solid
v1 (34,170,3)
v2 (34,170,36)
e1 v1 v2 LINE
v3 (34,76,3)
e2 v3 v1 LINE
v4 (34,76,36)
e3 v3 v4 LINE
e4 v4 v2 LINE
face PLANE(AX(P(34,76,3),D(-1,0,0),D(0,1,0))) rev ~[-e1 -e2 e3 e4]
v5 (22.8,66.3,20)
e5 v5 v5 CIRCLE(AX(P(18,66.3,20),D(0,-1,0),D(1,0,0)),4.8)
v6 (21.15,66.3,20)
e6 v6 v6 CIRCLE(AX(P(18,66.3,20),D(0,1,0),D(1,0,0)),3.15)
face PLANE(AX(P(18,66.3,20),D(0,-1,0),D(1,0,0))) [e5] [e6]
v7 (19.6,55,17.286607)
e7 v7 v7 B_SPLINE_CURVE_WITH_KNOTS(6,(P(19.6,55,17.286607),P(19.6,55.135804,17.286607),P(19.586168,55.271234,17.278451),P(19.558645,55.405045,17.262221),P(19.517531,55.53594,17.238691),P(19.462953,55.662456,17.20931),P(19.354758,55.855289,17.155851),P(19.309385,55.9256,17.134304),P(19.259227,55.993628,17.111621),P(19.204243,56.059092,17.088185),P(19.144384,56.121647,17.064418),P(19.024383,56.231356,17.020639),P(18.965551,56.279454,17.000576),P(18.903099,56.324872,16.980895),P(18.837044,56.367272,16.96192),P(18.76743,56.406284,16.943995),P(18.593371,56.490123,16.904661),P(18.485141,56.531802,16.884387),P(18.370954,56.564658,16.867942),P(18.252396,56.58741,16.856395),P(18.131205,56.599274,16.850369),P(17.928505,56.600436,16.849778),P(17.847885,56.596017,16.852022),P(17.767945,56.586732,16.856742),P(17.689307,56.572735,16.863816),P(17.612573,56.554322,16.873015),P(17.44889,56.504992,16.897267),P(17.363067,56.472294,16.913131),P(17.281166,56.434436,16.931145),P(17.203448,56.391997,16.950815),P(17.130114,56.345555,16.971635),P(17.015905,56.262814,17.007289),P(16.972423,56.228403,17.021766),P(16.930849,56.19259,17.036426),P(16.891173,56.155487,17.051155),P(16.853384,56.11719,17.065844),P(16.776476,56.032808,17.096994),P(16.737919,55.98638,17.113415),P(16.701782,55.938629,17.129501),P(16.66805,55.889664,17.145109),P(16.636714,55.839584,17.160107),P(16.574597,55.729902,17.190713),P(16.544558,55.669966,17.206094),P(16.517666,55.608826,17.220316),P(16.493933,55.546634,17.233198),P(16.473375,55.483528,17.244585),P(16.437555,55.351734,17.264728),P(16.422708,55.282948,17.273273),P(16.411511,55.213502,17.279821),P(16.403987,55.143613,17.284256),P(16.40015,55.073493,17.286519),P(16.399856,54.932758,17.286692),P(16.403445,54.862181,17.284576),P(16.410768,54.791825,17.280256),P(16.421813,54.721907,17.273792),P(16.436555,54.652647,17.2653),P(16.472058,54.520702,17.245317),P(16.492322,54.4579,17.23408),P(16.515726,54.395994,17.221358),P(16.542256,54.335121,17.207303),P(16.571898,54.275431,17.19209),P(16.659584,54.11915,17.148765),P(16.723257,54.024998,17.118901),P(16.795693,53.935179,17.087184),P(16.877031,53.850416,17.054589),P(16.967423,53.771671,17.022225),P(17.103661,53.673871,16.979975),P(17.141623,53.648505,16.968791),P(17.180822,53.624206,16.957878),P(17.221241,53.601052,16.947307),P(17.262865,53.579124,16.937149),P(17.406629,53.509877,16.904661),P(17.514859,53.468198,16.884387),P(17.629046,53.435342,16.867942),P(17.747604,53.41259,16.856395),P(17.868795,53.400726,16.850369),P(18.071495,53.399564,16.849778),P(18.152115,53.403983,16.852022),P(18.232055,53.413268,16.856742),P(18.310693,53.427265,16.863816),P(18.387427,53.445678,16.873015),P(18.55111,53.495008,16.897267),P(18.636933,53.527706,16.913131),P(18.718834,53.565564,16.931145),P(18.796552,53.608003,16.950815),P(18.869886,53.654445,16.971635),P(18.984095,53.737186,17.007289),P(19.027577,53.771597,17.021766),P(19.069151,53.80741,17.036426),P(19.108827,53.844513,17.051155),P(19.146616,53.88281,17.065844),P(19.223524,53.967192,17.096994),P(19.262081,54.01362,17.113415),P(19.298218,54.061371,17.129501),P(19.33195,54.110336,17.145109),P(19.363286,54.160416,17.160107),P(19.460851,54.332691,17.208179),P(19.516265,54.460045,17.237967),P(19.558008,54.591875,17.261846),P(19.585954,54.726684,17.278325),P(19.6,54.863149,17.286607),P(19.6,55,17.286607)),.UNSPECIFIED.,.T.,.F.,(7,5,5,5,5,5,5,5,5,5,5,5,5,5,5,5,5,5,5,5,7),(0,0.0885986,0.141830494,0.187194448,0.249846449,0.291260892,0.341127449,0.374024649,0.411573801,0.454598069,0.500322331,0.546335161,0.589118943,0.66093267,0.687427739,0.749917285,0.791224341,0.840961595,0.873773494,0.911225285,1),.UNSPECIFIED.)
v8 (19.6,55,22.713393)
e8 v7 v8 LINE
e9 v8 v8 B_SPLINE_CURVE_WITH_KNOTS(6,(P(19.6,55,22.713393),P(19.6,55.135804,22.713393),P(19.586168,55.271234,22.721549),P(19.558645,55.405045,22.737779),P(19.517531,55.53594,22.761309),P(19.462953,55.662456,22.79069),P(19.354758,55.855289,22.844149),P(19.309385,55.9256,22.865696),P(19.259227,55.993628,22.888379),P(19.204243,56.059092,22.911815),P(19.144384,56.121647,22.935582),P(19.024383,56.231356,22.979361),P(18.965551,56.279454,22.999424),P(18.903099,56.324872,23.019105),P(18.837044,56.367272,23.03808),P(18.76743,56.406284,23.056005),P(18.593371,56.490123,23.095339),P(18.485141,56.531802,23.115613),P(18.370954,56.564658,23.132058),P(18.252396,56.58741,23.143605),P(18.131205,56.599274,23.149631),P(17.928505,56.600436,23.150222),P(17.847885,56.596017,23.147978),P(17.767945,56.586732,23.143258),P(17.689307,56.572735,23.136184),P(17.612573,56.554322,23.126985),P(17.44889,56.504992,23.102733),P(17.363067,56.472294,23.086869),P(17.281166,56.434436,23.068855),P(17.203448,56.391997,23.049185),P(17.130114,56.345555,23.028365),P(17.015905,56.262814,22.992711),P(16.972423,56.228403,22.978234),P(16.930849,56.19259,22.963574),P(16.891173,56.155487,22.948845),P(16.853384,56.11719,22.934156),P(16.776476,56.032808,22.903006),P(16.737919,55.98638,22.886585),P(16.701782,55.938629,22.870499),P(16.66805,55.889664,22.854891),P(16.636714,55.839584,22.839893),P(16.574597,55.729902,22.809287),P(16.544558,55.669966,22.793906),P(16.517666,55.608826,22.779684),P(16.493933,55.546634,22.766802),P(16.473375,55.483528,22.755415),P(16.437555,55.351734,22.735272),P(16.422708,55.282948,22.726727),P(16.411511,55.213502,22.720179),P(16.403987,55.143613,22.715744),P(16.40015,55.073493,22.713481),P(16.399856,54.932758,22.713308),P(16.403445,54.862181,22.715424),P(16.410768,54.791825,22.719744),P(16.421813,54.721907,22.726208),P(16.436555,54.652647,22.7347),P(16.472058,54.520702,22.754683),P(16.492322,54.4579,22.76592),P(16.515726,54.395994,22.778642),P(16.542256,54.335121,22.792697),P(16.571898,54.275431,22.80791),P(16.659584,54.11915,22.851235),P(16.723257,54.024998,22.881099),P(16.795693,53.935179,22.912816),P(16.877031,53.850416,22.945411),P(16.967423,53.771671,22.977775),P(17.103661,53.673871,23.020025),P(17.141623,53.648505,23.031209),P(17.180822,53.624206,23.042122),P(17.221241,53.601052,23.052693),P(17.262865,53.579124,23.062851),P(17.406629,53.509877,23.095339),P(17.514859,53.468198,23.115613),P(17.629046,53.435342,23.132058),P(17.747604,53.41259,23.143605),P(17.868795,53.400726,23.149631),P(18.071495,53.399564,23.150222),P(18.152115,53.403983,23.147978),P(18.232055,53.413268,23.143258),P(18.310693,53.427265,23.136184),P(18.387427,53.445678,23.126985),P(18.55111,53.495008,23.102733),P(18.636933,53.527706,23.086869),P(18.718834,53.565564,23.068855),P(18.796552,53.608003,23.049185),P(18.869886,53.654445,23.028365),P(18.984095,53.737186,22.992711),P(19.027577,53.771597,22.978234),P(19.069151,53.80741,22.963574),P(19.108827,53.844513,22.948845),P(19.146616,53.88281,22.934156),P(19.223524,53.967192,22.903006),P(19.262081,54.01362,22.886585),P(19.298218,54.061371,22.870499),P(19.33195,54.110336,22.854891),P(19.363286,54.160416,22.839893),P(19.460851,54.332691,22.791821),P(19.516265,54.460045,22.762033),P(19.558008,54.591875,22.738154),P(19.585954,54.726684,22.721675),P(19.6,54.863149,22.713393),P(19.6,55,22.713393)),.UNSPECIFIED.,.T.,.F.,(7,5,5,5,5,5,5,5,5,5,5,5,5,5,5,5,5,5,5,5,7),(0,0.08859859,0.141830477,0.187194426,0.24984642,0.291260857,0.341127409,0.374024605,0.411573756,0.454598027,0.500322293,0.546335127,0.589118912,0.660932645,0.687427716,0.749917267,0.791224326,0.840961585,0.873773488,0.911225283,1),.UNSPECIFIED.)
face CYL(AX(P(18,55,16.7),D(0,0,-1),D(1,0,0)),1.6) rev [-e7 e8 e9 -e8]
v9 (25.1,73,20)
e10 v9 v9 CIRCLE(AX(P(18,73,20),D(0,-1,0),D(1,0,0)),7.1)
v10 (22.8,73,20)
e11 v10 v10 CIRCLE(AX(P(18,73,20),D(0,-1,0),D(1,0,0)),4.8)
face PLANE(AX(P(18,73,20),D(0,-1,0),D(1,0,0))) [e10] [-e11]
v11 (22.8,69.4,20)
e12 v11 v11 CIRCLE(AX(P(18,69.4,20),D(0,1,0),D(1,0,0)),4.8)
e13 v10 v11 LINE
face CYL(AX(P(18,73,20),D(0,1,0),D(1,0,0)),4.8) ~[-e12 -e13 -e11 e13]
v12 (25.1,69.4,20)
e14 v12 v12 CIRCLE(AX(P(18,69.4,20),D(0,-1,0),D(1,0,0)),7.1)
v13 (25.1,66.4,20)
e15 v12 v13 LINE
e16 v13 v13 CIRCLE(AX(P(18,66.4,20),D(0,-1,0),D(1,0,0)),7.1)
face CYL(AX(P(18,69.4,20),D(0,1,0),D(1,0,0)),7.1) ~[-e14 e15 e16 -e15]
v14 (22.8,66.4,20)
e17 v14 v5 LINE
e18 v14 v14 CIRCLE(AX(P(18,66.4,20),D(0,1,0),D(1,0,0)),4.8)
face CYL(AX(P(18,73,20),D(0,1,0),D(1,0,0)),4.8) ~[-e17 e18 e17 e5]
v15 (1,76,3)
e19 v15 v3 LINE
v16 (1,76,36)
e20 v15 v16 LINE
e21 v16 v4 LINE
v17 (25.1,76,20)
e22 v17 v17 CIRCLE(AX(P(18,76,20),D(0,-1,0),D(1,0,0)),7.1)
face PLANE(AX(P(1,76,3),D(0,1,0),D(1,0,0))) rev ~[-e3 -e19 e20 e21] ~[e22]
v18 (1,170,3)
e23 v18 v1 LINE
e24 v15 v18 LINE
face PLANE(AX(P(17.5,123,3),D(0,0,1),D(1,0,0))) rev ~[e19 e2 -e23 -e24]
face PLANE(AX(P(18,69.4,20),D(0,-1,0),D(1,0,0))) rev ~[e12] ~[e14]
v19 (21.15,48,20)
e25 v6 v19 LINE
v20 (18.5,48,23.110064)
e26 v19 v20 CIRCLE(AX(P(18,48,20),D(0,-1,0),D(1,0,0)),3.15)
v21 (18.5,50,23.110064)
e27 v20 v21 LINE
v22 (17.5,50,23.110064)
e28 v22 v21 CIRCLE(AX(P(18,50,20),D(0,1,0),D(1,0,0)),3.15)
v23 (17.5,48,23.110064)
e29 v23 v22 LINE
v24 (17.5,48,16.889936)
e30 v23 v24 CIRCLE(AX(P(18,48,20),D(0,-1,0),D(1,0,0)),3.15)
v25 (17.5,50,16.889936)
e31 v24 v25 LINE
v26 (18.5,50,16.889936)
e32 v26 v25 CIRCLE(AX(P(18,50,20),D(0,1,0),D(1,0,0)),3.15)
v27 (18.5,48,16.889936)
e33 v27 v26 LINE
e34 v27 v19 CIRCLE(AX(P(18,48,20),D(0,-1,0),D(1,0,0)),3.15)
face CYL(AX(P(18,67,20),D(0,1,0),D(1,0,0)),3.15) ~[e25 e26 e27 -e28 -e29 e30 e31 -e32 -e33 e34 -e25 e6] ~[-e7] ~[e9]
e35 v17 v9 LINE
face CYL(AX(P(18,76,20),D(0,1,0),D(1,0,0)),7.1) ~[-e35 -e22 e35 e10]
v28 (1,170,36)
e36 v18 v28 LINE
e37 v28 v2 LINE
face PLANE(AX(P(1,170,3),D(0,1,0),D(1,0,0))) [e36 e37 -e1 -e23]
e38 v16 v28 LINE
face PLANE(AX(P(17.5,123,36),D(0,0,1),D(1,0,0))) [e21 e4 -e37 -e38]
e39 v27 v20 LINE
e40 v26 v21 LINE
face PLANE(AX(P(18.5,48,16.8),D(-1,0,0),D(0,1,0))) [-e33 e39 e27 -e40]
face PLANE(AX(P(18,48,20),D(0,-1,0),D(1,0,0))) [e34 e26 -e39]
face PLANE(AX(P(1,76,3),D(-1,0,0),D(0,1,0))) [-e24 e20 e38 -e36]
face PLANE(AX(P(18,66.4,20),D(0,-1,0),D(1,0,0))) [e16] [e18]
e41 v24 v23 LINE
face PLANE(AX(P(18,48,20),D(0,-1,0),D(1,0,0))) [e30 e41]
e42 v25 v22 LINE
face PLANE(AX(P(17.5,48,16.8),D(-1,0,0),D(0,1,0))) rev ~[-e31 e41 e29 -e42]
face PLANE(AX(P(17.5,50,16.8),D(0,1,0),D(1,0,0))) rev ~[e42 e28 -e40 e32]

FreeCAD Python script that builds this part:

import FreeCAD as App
import Part
import Sketcher
from FreeCAD import Vector

doc = App.newDocument("Part")
body = doc.addObject("PartDesign::Body", "Body")

sketch1 = body.newObject("Sketcher::SketchObject", "Sketch")
sketch1.AttachmentSupport = (doc.getObject("XY_Plane"), [""])
sketch1.MapMode = "FlatFace"
sketch1.AttachmentOffset = App.Placement(Vector(0, 0, 16.8), App.Rotation())
sketch1.addGeometry([
    Part.LineSegment(Vector(17.5, 50, 0), Vector(17.5, 48, 0)),
    Part.LineSegment(Vector(17.5, 48, 0), Vector(18.5, 48, 0)),
    Part.LineSegment(Vector(18.5, 48, 0), Vector(18.5, 50, 0)),
    Part.LineSegment(Vector(18.5, 50, 0), Vector(17.5, 50, 0)),
], False)
sketch1.addConstraint([
    Sketcher.Constraint("Coincident", 0, 2, 1, 1),
    Sketcher.Constraint("Coincident", 1, 2, 2, 1),
    Sketcher.Constraint("Coincident", 2, 2, 3, 1),
    Sketcher.Constraint("Coincident", 3, 2, 0, 1),
    Sketcher.Constraint("Vertical", 0),
    Sketcher.Constraint("Horizontal", 1),
    Sketcher.Constraint("Vertical", 2),
    Sketcher.Constraint("Horizontal", 3),
    Sketcher.Constraint("DistanceX", 1, 1, 1, 2, 1.0),
    Sketcher.Constraint("DistanceY", 0, 2, 0, 1, 2.0),
    Sketcher.Constraint("DistanceY", -1, 1, 0, 2, 48.0),
    Sketcher.Constraint("DistanceX", -1, 1, 0, 2, 17.5),
])
pad1 = body.newObject("PartDesign::Pad", "Pad")
pad1.Profile = sketch1
pad1.Length = 6.4
body2 = doc.addObject("PartDesign::Body", "Body001")

sketch2 = body2.newObject("Sketcher::SketchObject", "Sketch001")
sketch2.AttachmentSupport = (doc.getObject("XY_Plane001"), [""])
sketch2.MapMode = "FlatFace"
sketch2.AttachmentOffset = App.Placement(Vector(0, 0, 16.7), App.Rotation())
sketch2.addGeometry(Part.Circle(Vector(18, 55, 0), Vector(0, 0, 1), 1.6), False)
sketch2.addConstraint([
    Sketcher.Constraint("Diameter", 0, 3.2),
    Sketcher.Constraint("DistanceX", -1, 1, 0, 3, 18.0),
    Sketcher.Constraint("DistanceY", -1, 1, 0, 3, 55.0),
])
pad2 = body2.newObject("PartDesign::Pad", "Pad001")
pad2.Profile = sketch2
pad2.Length = 6.5
body3 = doc.addObject("PartDesign::Body", "Body002")

sketch3 = body3.newObject("Sketcher::SketchObject", "Sketch002")
sketch3.AttachmentSupport = (doc.getObject("XZ_Plane002"), [""])
sketch3.MapMode = "FlatFace"
sketch3.AttachmentOffset = App.Placement(Vector(0, 0, -73), App.Rotation())
sketch3.addGeometry(Part.Circle(Vector(18, 20, 0), Vector(0, 0, 1), 4.8), False)
sketch3.addConstraint([
    Sketcher.Constraint("Diameter", 0, 9.6),
    Sketcher.Constraint("DistanceX", -1, 1, 0, 3, 18.0),
    Sketcher.Constraint("DistanceY", -1, 1, 0, 3, 20.0),
])
pad3 = body3.newObject("PartDesign::Pad", "Pad002")
pad3.Profile = sketch3
pad3.Length = 6.7
body4 = doc.addObject("PartDesign::Body", "Body003")

sketch4 = body4.newObject("Sketcher::SketchObject", "Sketch003")
sketch4.AttachmentSupport = (doc.getObject("XZ_Plane003"), [""])
sketch4.MapMode = "FlatFace"
sketch4.AttachmentOffset = App.Placement(Vector(0, 0, -67), App.Rotation())
sketch4.addGeometry(Part.Circle(Vector(18, 20, 0), Vector(0, 0, 1), 3.1), False)
sketch4.addConstraint([
    Sketcher.Constraint("Diameter", 0, 6.3),
    Sketcher.Constraint("DistanceX", -1, 1, 0, 3, 18.0),
    Sketcher.Constraint("DistanceY", -1, 1, 0, 3, 20.0),
])
pad4 = body4.newObject("PartDesign::Pad", "Pad003")
pad4.Profile = sketch4
pad4.Length = 19
body5 = doc.addObject("PartDesign::Body", "Body004")

sketch5 = body5.newObject("Sketcher::SketchObject", "Sketch004")
sketch5.AttachmentSupport = (doc.getObject("XZ_Plane004"), [""])
sketch5.MapMode = "FlatFace"
sketch5.AttachmentOffset = App.Placement(Vector(0, 0, -69.4), App.Rotation())
sketch5.addGeometry(Part.Circle(Vector(18, 20, 0), Vector(0, 0, 1), 7), False)
sketch5.addConstraint([
    Sketcher.Constraint("Diameter", 0, 14.2),
    Sketcher.Constraint("DistanceX", -1, 1, 0, 3, 18.0),
    Sketcher.Constraint("DistanceY", -1, 1, 0, 3, 20.0),
])
pad5 = body5.newObject("PartDesign::Pad", "Pad004")
pad5.Profile = sketch5
pad5.Length = 3
body6 = doc.addObject("PartDesign::Body", "Body005")

sketch6 = body6.newObject("Sketcher::SketchObject", "Sketch005")
sketch6.AttachmentSupport = (doc.getObject("XZ_Plane005"), [""])
sketch6.MapMode = "FlatFace"
sketch6.AttachmentOffset = App.Placement(Vector(0, 0, -76), App.Rotation())
sketch6.addGeometry(Part.Circle(Vector(18, 20, 0), Vector(0, 0, 1), 7), False)
sketch6.addConstraint([
    Sketcher.Constraint("Diameter", 0, 14.2),
    Sketcher.Constraint("DistanceX", -1, 1, 0, 3, 18.0),
    Sketcher.Constraint("DistanceY", -1, 1, 0, 3, 20.0),
])
pad6 = body6.newObject("PartDesign::Pad", "Pad005")
pad6.Profile = sketch6
pad6.Length = 3
doc.recompute()

boolean = body6.newObject("PartDesign::Boolean", "Boolean")
boolean.Type = "Fuse"
boolean.addObjects([body3])
doc.recompute()

boolean2 = body6.newObject("PartDesign::Boolean", "Boolean001")
boolean2.Type = "Fuse"
boolean2.addObjects([body4])
doc.recompute()

boolean3 = body6.newObject("PartDesign::Boolean", "Boolean002")
boolean3.Type = "Fuse"
boolean3.addObjects([body5])
doc.recompute()

boolean4 = body6.newObject("PartDesign::Boolean", "Boolean003")
boolean4.Type = "Cut"
boolean4.addObjects([body2])
doc.recompute()

boolean5 = body6.newObject("PartDesign::Boolean", "Boolean004")
boolean5.Type = "Cut"
boolean5.addObjects([body])
body7 = doc.addObject("PartDesign::Body", "Body006")
doc.recompute()

body6.Placement = App.Placement(Vector(-1, 0, -3), App.Rotation(Vector(0, 0, 1), 0))
boolean6 = body7.newObject("PartDesign::Boolean", "Boolean005")
boolean6.Type = "Fuse"
boolean6.addObjects([body6])
body8 = doc.addObject("PartDesign::Body", "Body007")

sketch7 = body8.newObject("Sketcher::SketchObject", "Sketch006")
sketch7.AttachmentSupport = (doc.getObject("XY_Plane007"), [""])
sketch7.MapMode = "FlatFace"
sketch7.addGeometry([
    Part.LineSegment(Vector(0, 170, 0), Vector(0, 76, 0)),
    Part.LineSegment(Vector(0, 76, 0), Vector(33, 76, 0)),
    Part.LineSegment(Vector(33, 76, 0), Vector(33, 170, 0)),
    Part.LineSegment(Vector(33, 170, 0), Vector(0, 170, 0)),
], False)
sketch7.addConstraint([
    Sketcher.Constraint("Coincident", 0, 2, 1, 1),
    Sketcher.Constraint("Coincident", 1, 2, 2, 1),
    Sketcher.Constraint("Coincident", 2, 2, 3, 1),
    Sketcher.Constraint("Coincident", 3, 2, 0, 1),
    Sketcher.Constraint("Vertical", 0),
    Sketcher.Constraint("Horizontal", 1),
    Sketcher.Constraint("Vertical", 2),
    Sketcher.Constraint("Horizontal", 3),
    Sketcher.Constraint("PointOnObject", 0, 2, -2),
    Sketcher.Constraint("DistanceX", 1, 1, 1, 2, 33.0),
    Sketcher.Constraint("DistanceY", 0, 2, 0, 1, 94.0),
    Sketcher.Constraint("DistanceY", -1, 1, 0, 2, 76.0),
])
pad7 = body8.newObject("PartDesign::Pad", "Pad006")
pad7.Profile = sketch7
pad7.Length = 33
doc.recompute()

boolean7 = body8.newObject("PartDesign::Boolean", "Boolean006")
boolean7.Type = "Fuse"
boolean7.addObjects([body7])
body9 = doc.addObject("PartDesign::Body", "Body008")
doc.recompute()

body8.Placement = App.Placement(Vector(1, 0, 3), App.Rotation(Vector(0, 0, 1), 0))
boolean8 = body9.newObject("PartDesign::Boolean", "Boolean007")
boolean8.Type = "Fuse"
boolean8.addObjects([body8])

doc.recompute()
